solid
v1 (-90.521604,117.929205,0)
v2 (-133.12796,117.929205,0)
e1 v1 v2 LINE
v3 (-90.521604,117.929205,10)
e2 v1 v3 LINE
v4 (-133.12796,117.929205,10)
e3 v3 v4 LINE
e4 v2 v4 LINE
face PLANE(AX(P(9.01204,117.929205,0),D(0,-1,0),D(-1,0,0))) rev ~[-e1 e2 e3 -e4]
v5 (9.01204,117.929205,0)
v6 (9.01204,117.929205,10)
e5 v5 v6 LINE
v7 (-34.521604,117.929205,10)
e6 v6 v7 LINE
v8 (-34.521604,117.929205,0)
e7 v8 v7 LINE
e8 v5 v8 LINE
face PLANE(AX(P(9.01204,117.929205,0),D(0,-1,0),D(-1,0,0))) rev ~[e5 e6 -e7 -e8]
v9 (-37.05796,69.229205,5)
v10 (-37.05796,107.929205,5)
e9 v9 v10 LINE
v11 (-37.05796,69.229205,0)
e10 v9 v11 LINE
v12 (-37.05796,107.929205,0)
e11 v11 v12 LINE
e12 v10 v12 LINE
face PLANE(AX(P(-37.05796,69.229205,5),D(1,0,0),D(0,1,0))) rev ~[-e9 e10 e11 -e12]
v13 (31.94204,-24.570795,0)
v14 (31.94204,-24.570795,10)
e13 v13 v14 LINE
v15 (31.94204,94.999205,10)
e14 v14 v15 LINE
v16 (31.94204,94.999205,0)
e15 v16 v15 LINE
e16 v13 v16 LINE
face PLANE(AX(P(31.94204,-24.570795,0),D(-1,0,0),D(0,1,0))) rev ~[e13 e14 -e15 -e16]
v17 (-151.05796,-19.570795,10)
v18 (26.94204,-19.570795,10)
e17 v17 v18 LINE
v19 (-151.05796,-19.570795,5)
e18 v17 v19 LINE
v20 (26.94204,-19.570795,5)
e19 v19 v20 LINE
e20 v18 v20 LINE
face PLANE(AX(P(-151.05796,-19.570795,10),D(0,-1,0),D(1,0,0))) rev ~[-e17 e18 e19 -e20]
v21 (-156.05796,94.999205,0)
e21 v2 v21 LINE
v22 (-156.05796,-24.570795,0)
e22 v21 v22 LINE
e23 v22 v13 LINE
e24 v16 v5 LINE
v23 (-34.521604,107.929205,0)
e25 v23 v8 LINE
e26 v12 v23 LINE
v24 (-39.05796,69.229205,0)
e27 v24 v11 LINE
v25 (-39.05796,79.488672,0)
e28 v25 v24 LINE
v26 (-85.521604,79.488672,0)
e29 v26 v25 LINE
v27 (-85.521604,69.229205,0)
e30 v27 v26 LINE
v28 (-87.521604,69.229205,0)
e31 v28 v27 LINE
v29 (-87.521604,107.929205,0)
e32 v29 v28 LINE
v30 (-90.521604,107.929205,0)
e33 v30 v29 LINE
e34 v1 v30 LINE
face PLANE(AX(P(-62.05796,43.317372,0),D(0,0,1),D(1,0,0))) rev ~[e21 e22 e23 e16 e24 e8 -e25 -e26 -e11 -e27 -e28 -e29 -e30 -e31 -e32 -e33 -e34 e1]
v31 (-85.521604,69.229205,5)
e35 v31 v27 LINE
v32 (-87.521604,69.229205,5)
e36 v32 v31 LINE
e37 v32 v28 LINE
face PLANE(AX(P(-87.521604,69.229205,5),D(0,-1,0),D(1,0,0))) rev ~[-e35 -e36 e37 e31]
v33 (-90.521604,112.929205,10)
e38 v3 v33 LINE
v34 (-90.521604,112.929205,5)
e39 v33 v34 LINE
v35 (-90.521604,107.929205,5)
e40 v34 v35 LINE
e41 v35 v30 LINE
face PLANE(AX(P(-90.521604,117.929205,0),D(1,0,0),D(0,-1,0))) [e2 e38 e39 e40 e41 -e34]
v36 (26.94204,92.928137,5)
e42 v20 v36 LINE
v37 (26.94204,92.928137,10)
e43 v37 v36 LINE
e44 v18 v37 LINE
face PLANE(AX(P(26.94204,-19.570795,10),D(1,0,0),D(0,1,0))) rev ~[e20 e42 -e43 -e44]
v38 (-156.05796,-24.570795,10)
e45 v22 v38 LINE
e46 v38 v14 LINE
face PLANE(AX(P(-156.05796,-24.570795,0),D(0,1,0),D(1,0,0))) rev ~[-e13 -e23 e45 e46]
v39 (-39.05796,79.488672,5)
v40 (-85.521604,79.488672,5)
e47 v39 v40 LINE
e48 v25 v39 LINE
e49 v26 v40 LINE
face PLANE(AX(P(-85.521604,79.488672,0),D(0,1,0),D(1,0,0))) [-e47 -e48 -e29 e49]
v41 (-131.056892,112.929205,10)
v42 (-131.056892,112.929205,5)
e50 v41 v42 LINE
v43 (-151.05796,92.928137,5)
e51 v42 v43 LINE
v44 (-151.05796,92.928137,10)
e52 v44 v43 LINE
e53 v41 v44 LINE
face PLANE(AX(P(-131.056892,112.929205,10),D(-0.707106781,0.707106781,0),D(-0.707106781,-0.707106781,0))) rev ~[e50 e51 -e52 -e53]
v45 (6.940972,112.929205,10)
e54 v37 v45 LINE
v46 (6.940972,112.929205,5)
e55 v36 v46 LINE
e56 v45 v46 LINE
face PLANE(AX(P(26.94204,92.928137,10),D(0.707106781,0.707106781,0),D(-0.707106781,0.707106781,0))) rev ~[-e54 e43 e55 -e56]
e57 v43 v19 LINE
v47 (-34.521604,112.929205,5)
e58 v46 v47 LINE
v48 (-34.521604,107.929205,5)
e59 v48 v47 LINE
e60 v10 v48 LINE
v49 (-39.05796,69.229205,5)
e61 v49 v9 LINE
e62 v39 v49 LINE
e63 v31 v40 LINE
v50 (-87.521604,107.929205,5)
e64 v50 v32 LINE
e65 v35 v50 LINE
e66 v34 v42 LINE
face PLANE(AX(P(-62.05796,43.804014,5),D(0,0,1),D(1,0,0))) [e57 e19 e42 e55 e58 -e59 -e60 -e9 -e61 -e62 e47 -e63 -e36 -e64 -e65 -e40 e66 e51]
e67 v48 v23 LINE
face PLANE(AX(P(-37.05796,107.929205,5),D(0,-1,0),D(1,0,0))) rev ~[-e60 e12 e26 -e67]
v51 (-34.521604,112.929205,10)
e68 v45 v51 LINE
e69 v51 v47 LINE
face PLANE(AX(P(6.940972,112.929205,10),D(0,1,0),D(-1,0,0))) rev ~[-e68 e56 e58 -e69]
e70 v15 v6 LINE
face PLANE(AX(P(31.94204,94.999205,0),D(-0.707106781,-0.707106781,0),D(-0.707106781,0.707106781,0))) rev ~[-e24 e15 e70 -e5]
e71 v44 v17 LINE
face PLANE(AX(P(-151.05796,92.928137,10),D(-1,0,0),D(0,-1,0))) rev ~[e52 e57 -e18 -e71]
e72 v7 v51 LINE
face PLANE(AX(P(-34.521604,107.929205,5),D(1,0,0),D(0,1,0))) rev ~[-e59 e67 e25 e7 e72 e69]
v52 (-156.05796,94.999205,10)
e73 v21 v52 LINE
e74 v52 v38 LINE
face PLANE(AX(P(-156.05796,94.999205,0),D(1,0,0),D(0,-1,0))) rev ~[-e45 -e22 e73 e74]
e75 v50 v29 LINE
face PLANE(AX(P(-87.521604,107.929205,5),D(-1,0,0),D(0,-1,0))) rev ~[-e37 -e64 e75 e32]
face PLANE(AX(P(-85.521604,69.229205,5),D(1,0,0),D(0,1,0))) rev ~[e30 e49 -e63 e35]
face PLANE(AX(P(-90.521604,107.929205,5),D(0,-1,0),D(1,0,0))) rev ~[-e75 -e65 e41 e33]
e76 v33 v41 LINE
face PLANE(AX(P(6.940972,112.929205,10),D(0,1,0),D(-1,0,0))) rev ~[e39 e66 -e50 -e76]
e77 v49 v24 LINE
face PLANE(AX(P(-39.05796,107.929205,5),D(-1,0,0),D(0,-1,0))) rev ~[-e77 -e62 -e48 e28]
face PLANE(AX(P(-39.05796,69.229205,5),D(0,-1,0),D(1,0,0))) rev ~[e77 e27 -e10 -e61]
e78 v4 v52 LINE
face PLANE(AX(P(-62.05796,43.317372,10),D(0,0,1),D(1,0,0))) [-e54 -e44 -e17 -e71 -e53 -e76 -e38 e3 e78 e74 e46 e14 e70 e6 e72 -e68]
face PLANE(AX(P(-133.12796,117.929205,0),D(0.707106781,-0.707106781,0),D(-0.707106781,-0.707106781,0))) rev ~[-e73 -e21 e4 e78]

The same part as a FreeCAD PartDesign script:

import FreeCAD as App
import Part
import Sketcher
from FreeCAD import Vector

doc = App.newDocument("Part")
params = doc.addObject("Spreadsheet::Sheet", "Params")
for row, (alias, value) in enumerate([
    ("sketch1_width", "188 mm"),
    ("sketch1_width2", "142.14 mm"),
    ("sketch1_height", "119.57 mm"),
    ("pad1_length", "10 mm"),
    ("sketch2_width", "178 mm"),
    ("pocket1_length", "5 mm"),
    ("sketch3_width", "2 mm"),
    ("sketch3_width2", "56 mm"),
    ("sketch3_width3", "3 mm"),
    ("sketch3_height", "38.7 mm"),
    ("pocket2_length", "5 mm"),
    ("sketch4_width", "56 mm"),
    ("sketch4_height", "8 mm"),
    ("pocket3_length", "10 mm"),
], start=1):
    params.set(f"A{row}", alias)
    params.set(f"B{row}", "=" + value)
    params.setAlias(f"B{row}", alias)

body = doc.addObject("PartDesign::Body", "Body")

sketch1 = body.newObject("Sketcher::SketchObject", "Sketch")
sketch1.AttachmentSupport = (doc.getObject("XY_Plane"), [""])
sketch1.MapMode = "FlatFace"
sketch1.addGeometry(Part.LineSegment(Vector(-156, 95, 0), Vector(-156, -25, 0)), False)
sketch1.addGeometry(Part.LineSegment(Vector(-156, -25, 0), Vector(32, -25, 0)), False)
sketch1.addGeometry(Part.LineSegment(Vector(32, -25, 0), Vector(32, 95, 0)), False)
sketch1.addGeometry(Part.LineSegment(Vector(32, 95, 0), Vector(9, 118, 0)), False)
sketch1.addGeometry(Part.LineSegment(Vector(9, 118, 0), Vector(-133, 118, 0)), False)
sketch1.addGeometry(Part.LineSegment(Vector(-133, 118, 0), Vector(-156, 95, 0)), False)
sketch1.addConstraint(Sketcher.Constraint("Coincident", 0, 2, 1, 1))
sketch1.addConstraint(Sketcher.Constraint("Coincident", 1, 2, 2, 1))
sketch1.addConstraint(Sketcher.Constraint("Coincident", 2, 2, 3, 1))
sketch1.addConstraint(Sketcher.Constraint("Coincident", 3, 2, 4, 1))
sketch1.addConstraint(Sketcher.Constraint("Coincident", 4, 2, 5, 1))
sketch1.addConstraint(Sketcher.Constraint("Coincident", 5, 2, 0, 1))
sketch1.addConstraint(Sketcher.Constraint("Vertical", 0))
sketch1.addConstraint(Sketcher.Constraint("Horizontal", 1))
sketch1.addConstraint(Sketcher.Constraint("Vertical", 2))
sketch1.addConstraint(Sketcher.Constraint("Horizontal", 4))
sketch1.addConstraint(Sketcher.Constraint("Perpendicular", 3, 5))
sketch1.addConstraint(Sketcher.Constraint("Horizontal", 2, 2, 5, 2))
sketch1.addConstraint(Sketcher.Constraint("Equal", 3, 5))
sketch1.addConstraint(Sketcher.Constraint("DistanceX", 1, 1, 1, 2, 188.0))
sketch1.addConstraint(Sketcher.Constraint("DistanceX", 4, 2, 4, 1, 142.14))
sketch1.addConstraint(Sketcher.Constraint("DistanceY", 0, 2, 0, 1, 119.57))
sketch1.addConstraint(Sketcher.Constraint("DistanceX", 0, 2, -1, 1, 156.05796))
sketch1.addConstraint(Sketcher.Constraint("DistanceY", 0, 2, -1, 1, 24.570795))
sketch1.setExpression("Constraints[13]", "Params.sketch1_width")
sketch1.setExpression("Constraints[14]", "Params.sketch1_width2")
sketch1.setExpression("Constraints[15]", "Params.sketch1_height")
pad1 = body.newObject("PartDesign::Pad", "Pad")
pad1.Profile = sketch1
pad1.setExpression("Length", "Params.pad1_length")

sketch2 = body.newObject("Sketcher::SketchObject", "Sketch001")
sketch2.AttachmentSupport = (doc.getObject("XY_Plane"), [""])
sketch2.MapMode = "FlatFace"
sketch2.AttachmentOffset = App.Placement(Vector(0, 0, 10), App.Rotation())
sketch2.addGeometry(Part.LineSegment(Vector(27, 93, 0), Vector(7, 113, 0)), False)
sketch2.addGeometry(Part.LineSegment(Vector(7, 113, 0), Vector(-131, 113, 0)), False)
sketch2.addGeometry(Part.LineSegment(Vector(-131, 113, 0), Vector(-151, 93, 0)), False)
sketch2.addGeometry(Part.LineSegment(Vector(-151, 93, 0), Vector(-151, -20, 0)), False)
sketch2.addGeometry(Part.LineSegment(Vector(-151, -20, 0), Vector(27, -20, 0)), False)
sketch2.addGeometry(Part.LineSegment(Vector(27, -20, 0), Vector(27, 93, 0)), False)
sketch2.addConstraint(Sketcher.Constraint("Coincident", 0, 2, 1, 1))
sketch2.addConstraint(Sketcher.Constraint("Coincident", 1, 2, 2, 1))
sketch2.addConstraint(Sketcher.Constraint("Coincident", 2, 2, 3, 1))
sketch2.addConstraint(Sketcher.Constraint("Coincident", 3, 2, 4, 1))
sketch2.addConstraint(Sketcher.Constraint("Coincident", 4, 2, 5, 1))
sketch2.addConstraint(Sketcher.Constraint("Coincident", 5, 2, 0, 1))
sketch2.addConstraint(Sketcher.Constraint("Horizontal", 1))
sketch2.addConstraint(Sketcher.Constraint("Vertical", 3))
sketch2.addConstraint(Sketcher.Constraint("Horizontal", 4))
sketch2.addConstraint(Sketcher.Constraint("Vertical", 5))
sketch2.addConstraint(Sketcher.Constraint("Perpendicular", 0, 2))
sketch2.addConstraint(Sketcher.Constraint("Horizontal", 2, 2, 5, 2))
sketch2.addConstraint(Sketcher.Constraint("Equal", 0, 2))
sketch2.addConstraint(Sketcher.Constraint("DistanceX", 4, 1, 4, 2, 178.0))
sketch2.addConstraint(Sketcher.Constraint("DistanceY", 3, 2, 1, 2, 132.5))
sketch2.addConstraint(Sketcher.Constraint("Distance", 0, 28.285781))
sketch2.addConstraint(Sketcher.Constraint("DistanceX", -1, 1, 0, 2, 6.940972))
sketch2.addConstraint(Sketcher.Constraint("DistanceY", -1, 1, 0, 2, 112.929205))
sketch2.setExpression("Constraints[13]", "Params.sketch2_width")
pocket1 = body.newObject("PartDesign::Pocket", "Pocket")
pocket1.Profile = sketch2
pocket1.setExpression("Length", "Params.pocket1_length")

sketch3 = body.newObject("Sketcher::SketchObject", "Sketch002")
sketch3.AttachmentSupport = (doc.getObject("XY_Plane"), [""])
sketch3.MapMode = "FlatFace"
sketch3.AttachmentOffset = App.Placement(Vector(0, 0, 5), App.Rotation())
sketch3.addGeometry(Part.LineSegment(Vector(-87.5, 107.9, 0), Vector(-87.5, 69.2, 0)), False)
sketch3.addGeometry(Part.LineSegment(Vector(-87.5, 69.2, 0), Vector(-85.5, 69.2, 0)), False)
sketch3.addGeometry(Part.LineSegment(Vector(-85.5, 69.2, 0), Vector(-85.5, 107.9, 0)), False)
sketch3.addGeometry(Part.LineSegment(Vector(-85.5, 107.9, 0), Vector(-39.1, 107.9, 0)), False)
sketch3.addGeometry(Part.LineSegment(Vector(-39.1, 107.9, 0), Vector(-39.1, 69.2, 0)), False)
sketch3.addGeometry(Part.LineSegment(Vector(-39.1, 69.2, 0), Vector(-37.1, 69.2, 0)), False)
sketch3.addGeometry(Part.LineSegment(Vector(-37.1, 69.2, 0), Vector(-37.1, 107.9, 0)), False)
sketch3.addGeometry(Part.LineSegment(Vector(-37.1, 107.9, 0), Vector(-34.5, 107.9, 0)), False)
sketch3.addGeometry(Part.LineSegment(Vector(-34.5, 107.9, 0), Vector(-34.5, 109.9, 0)), False)
sketch3.addGeometry(Part.LineSegment(Vector(-34.5, 109.9, 0), Vector(-90.5, 109.9, 0)), False)
sketch3.addGeometry(Part.LineSegment(Vector(-90.5, 109.9, 0), Vector(-90.5, 107.9, 0)), False)
sketch3.addGeometry(Part.LineSegment(Vector(-90.5, 107.9, 0), Vector(-87.5, 107.9, 0)), False)
sketch3.addConstraint(Sketcher.Constraint("Coincident", 0, 2, 1, 1))
sketch3.addConstraint(Sketcher.Constraint("Coincident", 1, 2, 2, 1))
sketch3.addConstraint(Sketcher.Constraint("Coincident", 2, 2, 3, 1))
sketch3.addConstraint(Sketcher.Constraint("Coincident", 3, 2, 4, 1))
sketch3.addConstraint(Sketcher.Constraint("Coincident", 4, 2, 5, 1))
sketch3.addConstraint(Sketcher.Constraint("Coincident", 5, 2, 6, 1))
sketch3.addConstraint(Sketcher.Constraint("Coincident", 6, 2, 7, 1))
sketch3.addConstraint(Sketcher.Constraint("Coincident", 7, 2, 8, 1))
sketch3.addConstraint(Sketcher.Constraint("Coincident", 8, 2, 9, 1))
sketch3.addConstraint(Sketcher.Constraint("Coincident", 9, 2, 10, 1))
sketch3.addConstraint(Sketcher.Constraint("Coincident", 10, 2, 11, 1))
sketch3.addConstraint(Sketcher.Constraint("Coincident", 11, 2, 0, 1))
sketch3.addConstraint(Sketcher.Constraint("Vertical", 0))
sketch3.addConstraint(Sketcher.Constraint("Horizontal", 1))
sketch3.addConstraint(Sketcher.Constraint("Vertical", 2))
sketch3.addConstraint(Sketcher.Constraint("Horizontal", 3))
sketch3.addConstraint(Sketcher.Constraint("Vertical", 4))
sketch3.addConstraint(Sketcher.Constraint("Horizontal", 5))
sketch3.addConstraint(Sketcher.Constraint("Vertical", 6))
sketch3.addConstraint(Sketcher.Constraint("Horizontal", 7))
sketch3.addConstraint(Sketcher.Constraint("Vertical", 8))
sketch3.addConstraint(Sketcher.Constraint("Horizontal", 9))
sketch3.addConstraint(Sketcher.Constraint("Vertical", 10))
sketch3.addConstraint(Sketcher.Constraint("Horizontal", 11))
sketch3.addConstraint(Sketcher.Constraint("Horizontal", 1, 2, 4, 2))
sketch3.addConstraint(Sketcher.Constraint("Horizontal", 3, 2, 6, 2))
sketch3.addConstraint(Sketcher.Constraint("Horizontal", 7, 2, 10, 2))
sketch3.addConstraint(Sketcher.Constraint("Equal", 1, 5))
sketch3.addConstraint(Sketcher.Constraint("Equal", 5, 8))
sketch3.addConstraint(Sketcher.Constraint("DistanceX", 1, 1, 1, 2, 2.0))
sketch3.addConstraint(Sketcher.Constraint("DistanceX", 9, 2, 9, 1, 56.0))
sketch3.addConstraint(Sketcher.Constraint("DistanceX", 11, 1, 11, 2, 3.0))
sketch3.addConstraint(Sketcher.Constraint("DistanceY", 0, 2, 0, 1, 38.7))
sketch3.addConstraint(Sketcher.Constraint("DistanceX", 3, 1, 3, 2, 46.463644))
sketch3.addConstraint(Sketcher.Constraint("DistanceX", 3, 2, -1, 1, 39.05796))
sketch3.addConstraint(Sketcher.Constraint("DistanceY", -1, 1, 0, 2, 69.229205))
sketch3.setExpression("Constraints[29]", "Params.sketch3_width")
sketch3.setExpression("Constraints[30]", "Params.sketch3_width2")
sketch3.setExpression("Constraints[31]", "Params.sketch3_width3")
sketch3.setExpression("Constraints[32]", "Params.sketch3_height")
pocket2 = body.newObject("PartDesign::Pocket", "Pocket001")
pocket2.Profile = sketch3
pocket2.setExpression("Length", "Params.pocket2_length")

sketch4 = body.newObject("Sketcher::SketchObject", "Sketch003")
sketch4.AttachmentSupport = (doc.getObject("XY_Plane"), [""])
sketch4.MapMode = "FlatFace"
sketch4.addGeometry(Part.LineSegment(Vector(-91, 110, 0), Vector(-91, 118, 0)), False)
sketch4.addGeometry(Part.LineSegment(Vector(-91, 118, 0), Vector(-35, 118, 0)), False)
sketch4.addGeometry(Part.LineSegment(Vector(-35, 118, 0), Vector(-35, 110, 0)), False)
sketch4.addGeometry(Part.LineSegment(Vector(-35, 110, 0), Vector(-91, 110, 0)), False)
sketch4.addGeometry(Part.LineSegment(Vector(-86, 79, 0), Vector(-86, 108, 0)), False)
sketch4.addGeometry(Part.LineSegment(Vector(-86, 108, 0), Vector(-39, 108, 0)), False)
sketch4.addGeometry(Part.LineSegment(Vector(-39, 108, 0), Vector(-39, 79, 0)), False)
sketch4.addGeometry(Part.LineSegment(Vector(-39, 79, 0), Vector(-86, 79, 0)), False)
sketch4.addConstraint(Sketcher.Constraint("Coincident", 0, 2, 1, 1))
sketch4.addConstraint(Sketcher.Constraint("Coincident", 1, 2, 2, 1))
sketch4.addConstraint(Sketcher.Constraint("Coincident", 2, 2, 3, 1))
sketch4.addConstraint(Sketcher.Constraint("Coincident", 3, 2, 0, 1))
sketch4.addConstraint(Sketcher.Constraint("Coincident", 4, 2, 5, 1))
sketch4.addConstraint(Sketcher.Constraint("Coincident", 5, 2, 6, 1))
sketch4.addConstraint(Sketcher.Constraint("Coincident", 6, 2, 7, 1))
sketch4.addConstraint(Sketcher.Constraint("Coincident", 7, 2, 4, 1))
sketch4.addConstraint(Sketcher.Constraint("Vertical", 0))
sketch4.addConstraint(Sketcher.Constraint("Horizontal", 1))
sketch4.addConstraint(Sketcher.Constraint("Vertical", 2))
sketch4.addConstraint(Sketcher.Constraint("Horizontal", 3))
sketch4.addConstraint(Sketcher.Constraint("Vertical", 4))
sketch4.addConstraint(Sketcher.Constraint("Horizontal", 5))
sketch4.addConstraint(Sketcher.Constraint("Vertical", 6))
sketch4.addConstraint(Sketcher.Constraint("Horizontal", 7))
sketch4.addConstraint(Sketcher.Constraint("DistanceX", 1, 1, 1, 2, 56.0))
sketch4.addConstraint(Sketcher.Constraint("DistanceY", 0, 1, 0, 2, 8.0))
sketch4.addConstraint(Sketcher.Constraint("DistanceX", 3, 2, 4, 2, 5.0))
sketch4.addConstraint(Sketcher.Constraint("DistanceY", 4, 2, 3, 2, 2.0))
sketch4.addConstraint(Sketcher.Constraint("DistanceX", 5, 1, 5, 2, 46.463644))
sketch4.addConstraint(Sketcher.Constraint("DistanceY", 4, 1, 4, 2, 28.440533))
sketch4.addConstraint(Sketcher.Constraint("DistanceX", 5, 2, -1, 1, 39.05796))
sketch4.addConstraint(Sketcher.Constraint("DistanceY", -1, 1, 0, 2, 117.929205))
sketch4.setExpression("Constraints[16]", "Params.sketch4_width")
sketch4.setExpression("Constraints[17]", "Params.sketch4_height")
pocket3 = body.newObject("PartDesign::Pocket", "Pocket002")
pocket3.Profile = sketch4
pocket3.setExpression("Length", "Params.pocket3_length")
pocket3.Reversed = True

doc.recompute()
